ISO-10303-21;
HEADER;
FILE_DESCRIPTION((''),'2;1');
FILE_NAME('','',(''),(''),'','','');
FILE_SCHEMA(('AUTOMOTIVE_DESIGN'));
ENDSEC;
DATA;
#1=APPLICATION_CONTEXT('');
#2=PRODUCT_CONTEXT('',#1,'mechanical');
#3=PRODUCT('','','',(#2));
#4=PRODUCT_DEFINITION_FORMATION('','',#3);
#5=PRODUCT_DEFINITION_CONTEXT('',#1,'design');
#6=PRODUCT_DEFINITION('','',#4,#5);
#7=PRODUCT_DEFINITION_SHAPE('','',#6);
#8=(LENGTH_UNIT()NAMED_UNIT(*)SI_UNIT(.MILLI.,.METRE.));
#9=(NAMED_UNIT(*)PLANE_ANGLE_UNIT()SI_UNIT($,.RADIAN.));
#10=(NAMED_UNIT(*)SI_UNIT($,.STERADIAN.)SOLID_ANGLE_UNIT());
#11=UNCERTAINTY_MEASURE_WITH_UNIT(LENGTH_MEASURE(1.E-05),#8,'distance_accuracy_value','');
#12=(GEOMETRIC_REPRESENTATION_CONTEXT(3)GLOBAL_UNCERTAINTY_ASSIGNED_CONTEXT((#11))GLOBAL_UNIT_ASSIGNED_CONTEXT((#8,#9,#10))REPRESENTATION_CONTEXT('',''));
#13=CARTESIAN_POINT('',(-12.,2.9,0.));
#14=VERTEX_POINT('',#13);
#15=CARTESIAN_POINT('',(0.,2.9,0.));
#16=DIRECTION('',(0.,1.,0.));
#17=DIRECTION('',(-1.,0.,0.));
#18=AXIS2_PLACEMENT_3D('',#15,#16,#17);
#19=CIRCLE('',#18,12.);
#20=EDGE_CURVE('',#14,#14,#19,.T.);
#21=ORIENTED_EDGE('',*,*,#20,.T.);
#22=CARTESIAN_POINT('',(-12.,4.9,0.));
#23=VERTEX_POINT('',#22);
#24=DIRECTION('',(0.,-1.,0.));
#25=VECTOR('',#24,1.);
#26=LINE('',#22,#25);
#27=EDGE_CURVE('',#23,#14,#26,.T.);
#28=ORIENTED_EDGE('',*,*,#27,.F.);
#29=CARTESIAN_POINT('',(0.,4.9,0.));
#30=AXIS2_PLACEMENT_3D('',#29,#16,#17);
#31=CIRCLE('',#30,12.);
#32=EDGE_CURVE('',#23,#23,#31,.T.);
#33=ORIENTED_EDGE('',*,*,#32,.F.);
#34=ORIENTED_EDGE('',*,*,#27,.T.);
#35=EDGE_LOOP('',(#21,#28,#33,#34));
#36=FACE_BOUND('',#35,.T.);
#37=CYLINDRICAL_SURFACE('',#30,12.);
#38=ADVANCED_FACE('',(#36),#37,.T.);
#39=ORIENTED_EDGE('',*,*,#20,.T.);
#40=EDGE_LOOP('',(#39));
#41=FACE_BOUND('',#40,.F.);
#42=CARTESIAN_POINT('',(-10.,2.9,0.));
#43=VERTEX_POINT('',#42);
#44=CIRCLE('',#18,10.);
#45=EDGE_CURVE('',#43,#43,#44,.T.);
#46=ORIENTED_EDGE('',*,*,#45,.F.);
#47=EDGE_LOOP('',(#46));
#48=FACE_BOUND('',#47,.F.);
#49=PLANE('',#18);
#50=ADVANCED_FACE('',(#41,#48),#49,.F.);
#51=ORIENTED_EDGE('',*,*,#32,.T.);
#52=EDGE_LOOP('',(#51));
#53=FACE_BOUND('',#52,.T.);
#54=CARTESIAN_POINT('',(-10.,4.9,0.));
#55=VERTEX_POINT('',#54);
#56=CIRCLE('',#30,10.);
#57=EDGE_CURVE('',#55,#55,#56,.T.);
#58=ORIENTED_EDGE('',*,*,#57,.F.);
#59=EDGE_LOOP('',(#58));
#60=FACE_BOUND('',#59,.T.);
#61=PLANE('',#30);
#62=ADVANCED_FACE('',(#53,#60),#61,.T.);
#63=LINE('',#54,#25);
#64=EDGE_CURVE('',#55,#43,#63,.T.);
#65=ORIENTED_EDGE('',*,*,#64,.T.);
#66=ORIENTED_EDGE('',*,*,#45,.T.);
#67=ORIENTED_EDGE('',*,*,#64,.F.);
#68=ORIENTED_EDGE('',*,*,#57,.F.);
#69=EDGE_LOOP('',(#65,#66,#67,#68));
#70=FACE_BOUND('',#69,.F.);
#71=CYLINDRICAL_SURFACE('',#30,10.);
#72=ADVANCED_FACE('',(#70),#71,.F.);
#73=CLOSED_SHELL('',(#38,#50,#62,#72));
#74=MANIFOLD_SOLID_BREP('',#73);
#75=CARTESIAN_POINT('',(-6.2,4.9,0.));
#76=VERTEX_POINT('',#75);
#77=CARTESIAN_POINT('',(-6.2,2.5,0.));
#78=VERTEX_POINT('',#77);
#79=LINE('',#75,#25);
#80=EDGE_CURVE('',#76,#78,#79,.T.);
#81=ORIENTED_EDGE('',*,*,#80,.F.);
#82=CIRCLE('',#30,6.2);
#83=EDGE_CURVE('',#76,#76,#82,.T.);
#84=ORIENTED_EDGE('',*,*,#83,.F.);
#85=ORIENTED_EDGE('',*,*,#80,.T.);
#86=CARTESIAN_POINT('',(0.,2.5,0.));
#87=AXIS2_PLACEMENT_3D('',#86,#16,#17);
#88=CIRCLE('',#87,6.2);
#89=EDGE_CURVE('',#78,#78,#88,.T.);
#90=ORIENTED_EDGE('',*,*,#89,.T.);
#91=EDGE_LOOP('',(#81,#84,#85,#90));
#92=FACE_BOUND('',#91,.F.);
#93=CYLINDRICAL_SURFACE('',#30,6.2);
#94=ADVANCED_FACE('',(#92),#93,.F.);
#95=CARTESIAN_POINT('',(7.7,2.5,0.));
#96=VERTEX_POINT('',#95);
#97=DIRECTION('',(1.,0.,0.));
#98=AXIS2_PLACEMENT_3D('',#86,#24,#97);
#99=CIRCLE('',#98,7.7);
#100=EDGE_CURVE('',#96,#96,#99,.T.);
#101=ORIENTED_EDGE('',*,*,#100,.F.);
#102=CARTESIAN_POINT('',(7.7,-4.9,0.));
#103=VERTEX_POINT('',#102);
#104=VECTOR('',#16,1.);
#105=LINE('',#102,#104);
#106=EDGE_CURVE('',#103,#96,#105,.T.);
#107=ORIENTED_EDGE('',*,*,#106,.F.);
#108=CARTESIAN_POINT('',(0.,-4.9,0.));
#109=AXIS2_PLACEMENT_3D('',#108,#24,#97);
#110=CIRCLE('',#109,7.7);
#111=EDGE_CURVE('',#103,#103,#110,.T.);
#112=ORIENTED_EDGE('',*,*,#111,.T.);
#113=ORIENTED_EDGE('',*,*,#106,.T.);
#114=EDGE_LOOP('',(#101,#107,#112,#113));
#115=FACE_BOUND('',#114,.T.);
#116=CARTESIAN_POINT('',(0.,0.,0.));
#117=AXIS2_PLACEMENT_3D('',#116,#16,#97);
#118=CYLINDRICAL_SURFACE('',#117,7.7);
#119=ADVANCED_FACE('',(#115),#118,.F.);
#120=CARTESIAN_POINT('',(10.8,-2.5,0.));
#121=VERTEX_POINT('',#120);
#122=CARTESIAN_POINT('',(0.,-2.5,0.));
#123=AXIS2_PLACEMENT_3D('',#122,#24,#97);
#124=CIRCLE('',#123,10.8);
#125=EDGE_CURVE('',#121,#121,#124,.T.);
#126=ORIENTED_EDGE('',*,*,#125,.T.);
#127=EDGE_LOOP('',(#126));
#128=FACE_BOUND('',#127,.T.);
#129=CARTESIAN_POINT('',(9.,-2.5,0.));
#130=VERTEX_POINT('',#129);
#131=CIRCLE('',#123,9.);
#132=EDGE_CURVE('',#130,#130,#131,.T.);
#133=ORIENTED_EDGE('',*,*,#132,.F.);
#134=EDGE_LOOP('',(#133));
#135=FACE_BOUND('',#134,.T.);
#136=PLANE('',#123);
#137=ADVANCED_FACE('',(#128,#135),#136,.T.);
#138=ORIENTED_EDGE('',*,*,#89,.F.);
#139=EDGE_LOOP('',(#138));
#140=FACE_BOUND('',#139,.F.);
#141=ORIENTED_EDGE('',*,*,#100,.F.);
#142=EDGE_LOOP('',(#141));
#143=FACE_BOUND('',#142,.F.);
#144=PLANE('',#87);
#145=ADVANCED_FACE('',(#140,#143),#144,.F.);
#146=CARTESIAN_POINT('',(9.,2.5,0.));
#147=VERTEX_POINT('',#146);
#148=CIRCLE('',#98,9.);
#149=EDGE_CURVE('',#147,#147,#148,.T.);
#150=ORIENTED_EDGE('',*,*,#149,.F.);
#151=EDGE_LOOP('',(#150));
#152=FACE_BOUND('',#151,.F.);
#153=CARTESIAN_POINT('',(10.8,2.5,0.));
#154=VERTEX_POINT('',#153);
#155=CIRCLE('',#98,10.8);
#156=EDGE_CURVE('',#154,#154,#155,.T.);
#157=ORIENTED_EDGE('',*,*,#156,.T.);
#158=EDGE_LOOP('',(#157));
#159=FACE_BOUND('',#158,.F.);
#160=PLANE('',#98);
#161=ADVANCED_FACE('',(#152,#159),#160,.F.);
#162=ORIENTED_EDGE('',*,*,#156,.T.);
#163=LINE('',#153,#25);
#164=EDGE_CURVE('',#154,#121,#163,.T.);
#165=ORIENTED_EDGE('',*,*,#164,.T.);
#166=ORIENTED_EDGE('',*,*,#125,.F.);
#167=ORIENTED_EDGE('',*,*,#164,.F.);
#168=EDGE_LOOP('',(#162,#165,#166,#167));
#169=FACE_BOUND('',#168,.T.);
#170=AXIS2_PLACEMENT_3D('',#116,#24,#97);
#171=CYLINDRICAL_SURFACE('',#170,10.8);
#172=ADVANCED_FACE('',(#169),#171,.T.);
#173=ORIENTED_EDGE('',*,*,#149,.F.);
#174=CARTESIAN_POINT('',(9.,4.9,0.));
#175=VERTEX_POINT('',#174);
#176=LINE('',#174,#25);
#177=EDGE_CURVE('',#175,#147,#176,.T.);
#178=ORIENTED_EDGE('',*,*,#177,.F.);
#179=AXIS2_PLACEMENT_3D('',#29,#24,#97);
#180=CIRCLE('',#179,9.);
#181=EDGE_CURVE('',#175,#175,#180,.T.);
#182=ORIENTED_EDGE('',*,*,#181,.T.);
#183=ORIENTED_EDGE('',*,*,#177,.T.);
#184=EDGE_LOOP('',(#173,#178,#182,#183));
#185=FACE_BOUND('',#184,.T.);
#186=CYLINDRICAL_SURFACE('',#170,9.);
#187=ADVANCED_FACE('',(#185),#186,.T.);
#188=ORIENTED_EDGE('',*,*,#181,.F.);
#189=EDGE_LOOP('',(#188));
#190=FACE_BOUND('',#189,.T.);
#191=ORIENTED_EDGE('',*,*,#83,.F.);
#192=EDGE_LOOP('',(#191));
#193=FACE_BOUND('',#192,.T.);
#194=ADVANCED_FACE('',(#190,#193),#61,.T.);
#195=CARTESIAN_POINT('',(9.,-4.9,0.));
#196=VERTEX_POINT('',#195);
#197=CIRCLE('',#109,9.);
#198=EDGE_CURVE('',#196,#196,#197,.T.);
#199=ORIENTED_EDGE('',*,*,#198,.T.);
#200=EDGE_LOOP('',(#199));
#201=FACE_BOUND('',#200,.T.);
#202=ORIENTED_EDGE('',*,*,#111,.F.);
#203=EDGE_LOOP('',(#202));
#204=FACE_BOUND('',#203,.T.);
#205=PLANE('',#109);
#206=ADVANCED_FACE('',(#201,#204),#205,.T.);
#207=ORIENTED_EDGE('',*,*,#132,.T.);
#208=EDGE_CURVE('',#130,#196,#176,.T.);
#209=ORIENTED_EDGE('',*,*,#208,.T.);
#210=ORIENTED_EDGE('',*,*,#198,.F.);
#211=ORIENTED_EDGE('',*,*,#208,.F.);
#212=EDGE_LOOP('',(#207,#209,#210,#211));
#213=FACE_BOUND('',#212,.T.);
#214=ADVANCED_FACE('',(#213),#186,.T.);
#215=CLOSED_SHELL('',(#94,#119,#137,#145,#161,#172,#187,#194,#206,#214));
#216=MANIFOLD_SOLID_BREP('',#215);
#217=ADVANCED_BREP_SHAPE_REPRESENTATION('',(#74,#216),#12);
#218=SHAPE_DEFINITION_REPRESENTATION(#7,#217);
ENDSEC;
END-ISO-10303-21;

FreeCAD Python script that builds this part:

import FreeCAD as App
import Part
import Sketcher
from FreeCAD import Vector
Q = App.Units.Quantity

doc = App.newDocument("Part")
body = doc.addObject("PartDesign::Body", "Body")

sketch1 = body.newObject("Sketcher::SketchObject", "Sketch")
sketch1.AttachmentSupport = (doc.getObject("XZ_Plane"), [""])
sketch1.MapMode = "FlatFace"
sketch1.addGeometry([
    Part.Circle(Vector(0, 0, 0), Vector(0, 0, 1), 11),
    Part.Circle(Vector(0, 0, 0), Vector(0, 0, 1), 9),
], False)
sketch1.addConstraint([
    Sketcher.Constraint("Coincident", 0, 3, -1, 1),
    Sketcher.Constraint("Coincident", 1, 3, -1, 1),
    Sketcher.Constraint("Diameter", 1, Q("18 mm")),
    Sketcher.Constraint("Diameter", 0, Q("21.6 mm")),
])
pad1 = body.newObject("PartDesign::Pad", "Pad")
pad1.Profile = sketch1
pad1.Length = 5
pad1.Midplane = True

sketch2 = body.newObject("Sketcher::SketchObject", "Sketch001")
sketch2.AttachmentSupport = (doc.getObject("XZ_Plane"), [""])
sketch2.MapMode = "FlatFace"
sketch2.addGeometry([
    Part.Circle(Vector(0, 0, 0), Vector(0, 0, 1), 9),
    Part.Circle(Vector(0, 0, 0), Vector(0, 0, 1), 8),
], False)
sketch2.addConstraint([
    Sketcher.Constraint("Coincident", 0, 3, -1, 1),
    Sketcher.Constraint("Coincident", 1, 3, -1, 1),
    Sketcher.Constraint("Diameter", 0, Q("18 mm")),
    Sketcher.Constraint("Diameter", 1, Q("15.4 mm")),
])
pad2 = body.newObject("PartDesign::Pad", "Pad001")
pad2.Profile = sketch2
pad2.Length = 9.8
pad2.Midplane = True

sketch3 = body.newObject("Sketcher::SketchObject", "Sketch002")
sketch3.AttachmentSupport = (doc.getObject("XZ_Plane"), [""])
sketch3.MapMode = "FlatFace"
sketch3.AttachmentOffset = App.Placement(Vector(0, 0, -4.9), App.Rotation())
sketch3.addGeometry([
    Part.Circle(Vector(0, 0, 0), Vector(0, 0, 1), 8),
    Part.Circle(Vector(0, 0, 0), Vector(0, 0, 1), 6),
], False)
sketch3.addConstraint([
    Sketcher.Constraint("Coincident", 0, 3, -1, 1),
    Sketcher.Constraint("Coincident", 1, 3, -1, 1),
    Sketcher.Constraint("Diameter", 0, Q("15.4 mm")),
    Sketcher.Constraint("Diameter", 1, Q("12.4 mm")),
])
pad3 = body.newObject("PartDesign::Pad", "Pad002")
pad3.Profile = sketch3
pad3.Length = 2.4
body2 = doc.addObject("PartDesign::Body", "Body001")

sketch4 = body2.newObject("Sketcher::SketchObject", "Sketch003")
sketch4.AttachmentSupport = (doc.getObject("XZ_Plane001"), [""])
sketch4.MapMode = "FlatFace"
sketch4.AttachmentOffset = App.Placement(Vector(0, 0, -4.9), App.Rotation())
sketch4.addGeometry([
    Part.Circle(Vector(0, 0, 0), Vector(0, 0, 1), 12),
    Part.Circle(Vector(0, 0, 0), Vector(0, 0, 1), 10),
], False)
sketch4.addConstraint([
    Sketcher.Constraint("Coincident", 0, 3, -1, 1),
    Sketcher.Constraint("Coincident", 1, 3, -1, 1),
    Sketcher.Constraint("Diameter", 0, Q("24 mm")),
    Sketcher.Constraint("Diameter", 1, Q("20 mm")),
])
pad4 = body2.newObject("PartDesign::Pad", "Pad003")
pad4.Profile = sketch4
pad4.Length = 2

doc.recompute()
